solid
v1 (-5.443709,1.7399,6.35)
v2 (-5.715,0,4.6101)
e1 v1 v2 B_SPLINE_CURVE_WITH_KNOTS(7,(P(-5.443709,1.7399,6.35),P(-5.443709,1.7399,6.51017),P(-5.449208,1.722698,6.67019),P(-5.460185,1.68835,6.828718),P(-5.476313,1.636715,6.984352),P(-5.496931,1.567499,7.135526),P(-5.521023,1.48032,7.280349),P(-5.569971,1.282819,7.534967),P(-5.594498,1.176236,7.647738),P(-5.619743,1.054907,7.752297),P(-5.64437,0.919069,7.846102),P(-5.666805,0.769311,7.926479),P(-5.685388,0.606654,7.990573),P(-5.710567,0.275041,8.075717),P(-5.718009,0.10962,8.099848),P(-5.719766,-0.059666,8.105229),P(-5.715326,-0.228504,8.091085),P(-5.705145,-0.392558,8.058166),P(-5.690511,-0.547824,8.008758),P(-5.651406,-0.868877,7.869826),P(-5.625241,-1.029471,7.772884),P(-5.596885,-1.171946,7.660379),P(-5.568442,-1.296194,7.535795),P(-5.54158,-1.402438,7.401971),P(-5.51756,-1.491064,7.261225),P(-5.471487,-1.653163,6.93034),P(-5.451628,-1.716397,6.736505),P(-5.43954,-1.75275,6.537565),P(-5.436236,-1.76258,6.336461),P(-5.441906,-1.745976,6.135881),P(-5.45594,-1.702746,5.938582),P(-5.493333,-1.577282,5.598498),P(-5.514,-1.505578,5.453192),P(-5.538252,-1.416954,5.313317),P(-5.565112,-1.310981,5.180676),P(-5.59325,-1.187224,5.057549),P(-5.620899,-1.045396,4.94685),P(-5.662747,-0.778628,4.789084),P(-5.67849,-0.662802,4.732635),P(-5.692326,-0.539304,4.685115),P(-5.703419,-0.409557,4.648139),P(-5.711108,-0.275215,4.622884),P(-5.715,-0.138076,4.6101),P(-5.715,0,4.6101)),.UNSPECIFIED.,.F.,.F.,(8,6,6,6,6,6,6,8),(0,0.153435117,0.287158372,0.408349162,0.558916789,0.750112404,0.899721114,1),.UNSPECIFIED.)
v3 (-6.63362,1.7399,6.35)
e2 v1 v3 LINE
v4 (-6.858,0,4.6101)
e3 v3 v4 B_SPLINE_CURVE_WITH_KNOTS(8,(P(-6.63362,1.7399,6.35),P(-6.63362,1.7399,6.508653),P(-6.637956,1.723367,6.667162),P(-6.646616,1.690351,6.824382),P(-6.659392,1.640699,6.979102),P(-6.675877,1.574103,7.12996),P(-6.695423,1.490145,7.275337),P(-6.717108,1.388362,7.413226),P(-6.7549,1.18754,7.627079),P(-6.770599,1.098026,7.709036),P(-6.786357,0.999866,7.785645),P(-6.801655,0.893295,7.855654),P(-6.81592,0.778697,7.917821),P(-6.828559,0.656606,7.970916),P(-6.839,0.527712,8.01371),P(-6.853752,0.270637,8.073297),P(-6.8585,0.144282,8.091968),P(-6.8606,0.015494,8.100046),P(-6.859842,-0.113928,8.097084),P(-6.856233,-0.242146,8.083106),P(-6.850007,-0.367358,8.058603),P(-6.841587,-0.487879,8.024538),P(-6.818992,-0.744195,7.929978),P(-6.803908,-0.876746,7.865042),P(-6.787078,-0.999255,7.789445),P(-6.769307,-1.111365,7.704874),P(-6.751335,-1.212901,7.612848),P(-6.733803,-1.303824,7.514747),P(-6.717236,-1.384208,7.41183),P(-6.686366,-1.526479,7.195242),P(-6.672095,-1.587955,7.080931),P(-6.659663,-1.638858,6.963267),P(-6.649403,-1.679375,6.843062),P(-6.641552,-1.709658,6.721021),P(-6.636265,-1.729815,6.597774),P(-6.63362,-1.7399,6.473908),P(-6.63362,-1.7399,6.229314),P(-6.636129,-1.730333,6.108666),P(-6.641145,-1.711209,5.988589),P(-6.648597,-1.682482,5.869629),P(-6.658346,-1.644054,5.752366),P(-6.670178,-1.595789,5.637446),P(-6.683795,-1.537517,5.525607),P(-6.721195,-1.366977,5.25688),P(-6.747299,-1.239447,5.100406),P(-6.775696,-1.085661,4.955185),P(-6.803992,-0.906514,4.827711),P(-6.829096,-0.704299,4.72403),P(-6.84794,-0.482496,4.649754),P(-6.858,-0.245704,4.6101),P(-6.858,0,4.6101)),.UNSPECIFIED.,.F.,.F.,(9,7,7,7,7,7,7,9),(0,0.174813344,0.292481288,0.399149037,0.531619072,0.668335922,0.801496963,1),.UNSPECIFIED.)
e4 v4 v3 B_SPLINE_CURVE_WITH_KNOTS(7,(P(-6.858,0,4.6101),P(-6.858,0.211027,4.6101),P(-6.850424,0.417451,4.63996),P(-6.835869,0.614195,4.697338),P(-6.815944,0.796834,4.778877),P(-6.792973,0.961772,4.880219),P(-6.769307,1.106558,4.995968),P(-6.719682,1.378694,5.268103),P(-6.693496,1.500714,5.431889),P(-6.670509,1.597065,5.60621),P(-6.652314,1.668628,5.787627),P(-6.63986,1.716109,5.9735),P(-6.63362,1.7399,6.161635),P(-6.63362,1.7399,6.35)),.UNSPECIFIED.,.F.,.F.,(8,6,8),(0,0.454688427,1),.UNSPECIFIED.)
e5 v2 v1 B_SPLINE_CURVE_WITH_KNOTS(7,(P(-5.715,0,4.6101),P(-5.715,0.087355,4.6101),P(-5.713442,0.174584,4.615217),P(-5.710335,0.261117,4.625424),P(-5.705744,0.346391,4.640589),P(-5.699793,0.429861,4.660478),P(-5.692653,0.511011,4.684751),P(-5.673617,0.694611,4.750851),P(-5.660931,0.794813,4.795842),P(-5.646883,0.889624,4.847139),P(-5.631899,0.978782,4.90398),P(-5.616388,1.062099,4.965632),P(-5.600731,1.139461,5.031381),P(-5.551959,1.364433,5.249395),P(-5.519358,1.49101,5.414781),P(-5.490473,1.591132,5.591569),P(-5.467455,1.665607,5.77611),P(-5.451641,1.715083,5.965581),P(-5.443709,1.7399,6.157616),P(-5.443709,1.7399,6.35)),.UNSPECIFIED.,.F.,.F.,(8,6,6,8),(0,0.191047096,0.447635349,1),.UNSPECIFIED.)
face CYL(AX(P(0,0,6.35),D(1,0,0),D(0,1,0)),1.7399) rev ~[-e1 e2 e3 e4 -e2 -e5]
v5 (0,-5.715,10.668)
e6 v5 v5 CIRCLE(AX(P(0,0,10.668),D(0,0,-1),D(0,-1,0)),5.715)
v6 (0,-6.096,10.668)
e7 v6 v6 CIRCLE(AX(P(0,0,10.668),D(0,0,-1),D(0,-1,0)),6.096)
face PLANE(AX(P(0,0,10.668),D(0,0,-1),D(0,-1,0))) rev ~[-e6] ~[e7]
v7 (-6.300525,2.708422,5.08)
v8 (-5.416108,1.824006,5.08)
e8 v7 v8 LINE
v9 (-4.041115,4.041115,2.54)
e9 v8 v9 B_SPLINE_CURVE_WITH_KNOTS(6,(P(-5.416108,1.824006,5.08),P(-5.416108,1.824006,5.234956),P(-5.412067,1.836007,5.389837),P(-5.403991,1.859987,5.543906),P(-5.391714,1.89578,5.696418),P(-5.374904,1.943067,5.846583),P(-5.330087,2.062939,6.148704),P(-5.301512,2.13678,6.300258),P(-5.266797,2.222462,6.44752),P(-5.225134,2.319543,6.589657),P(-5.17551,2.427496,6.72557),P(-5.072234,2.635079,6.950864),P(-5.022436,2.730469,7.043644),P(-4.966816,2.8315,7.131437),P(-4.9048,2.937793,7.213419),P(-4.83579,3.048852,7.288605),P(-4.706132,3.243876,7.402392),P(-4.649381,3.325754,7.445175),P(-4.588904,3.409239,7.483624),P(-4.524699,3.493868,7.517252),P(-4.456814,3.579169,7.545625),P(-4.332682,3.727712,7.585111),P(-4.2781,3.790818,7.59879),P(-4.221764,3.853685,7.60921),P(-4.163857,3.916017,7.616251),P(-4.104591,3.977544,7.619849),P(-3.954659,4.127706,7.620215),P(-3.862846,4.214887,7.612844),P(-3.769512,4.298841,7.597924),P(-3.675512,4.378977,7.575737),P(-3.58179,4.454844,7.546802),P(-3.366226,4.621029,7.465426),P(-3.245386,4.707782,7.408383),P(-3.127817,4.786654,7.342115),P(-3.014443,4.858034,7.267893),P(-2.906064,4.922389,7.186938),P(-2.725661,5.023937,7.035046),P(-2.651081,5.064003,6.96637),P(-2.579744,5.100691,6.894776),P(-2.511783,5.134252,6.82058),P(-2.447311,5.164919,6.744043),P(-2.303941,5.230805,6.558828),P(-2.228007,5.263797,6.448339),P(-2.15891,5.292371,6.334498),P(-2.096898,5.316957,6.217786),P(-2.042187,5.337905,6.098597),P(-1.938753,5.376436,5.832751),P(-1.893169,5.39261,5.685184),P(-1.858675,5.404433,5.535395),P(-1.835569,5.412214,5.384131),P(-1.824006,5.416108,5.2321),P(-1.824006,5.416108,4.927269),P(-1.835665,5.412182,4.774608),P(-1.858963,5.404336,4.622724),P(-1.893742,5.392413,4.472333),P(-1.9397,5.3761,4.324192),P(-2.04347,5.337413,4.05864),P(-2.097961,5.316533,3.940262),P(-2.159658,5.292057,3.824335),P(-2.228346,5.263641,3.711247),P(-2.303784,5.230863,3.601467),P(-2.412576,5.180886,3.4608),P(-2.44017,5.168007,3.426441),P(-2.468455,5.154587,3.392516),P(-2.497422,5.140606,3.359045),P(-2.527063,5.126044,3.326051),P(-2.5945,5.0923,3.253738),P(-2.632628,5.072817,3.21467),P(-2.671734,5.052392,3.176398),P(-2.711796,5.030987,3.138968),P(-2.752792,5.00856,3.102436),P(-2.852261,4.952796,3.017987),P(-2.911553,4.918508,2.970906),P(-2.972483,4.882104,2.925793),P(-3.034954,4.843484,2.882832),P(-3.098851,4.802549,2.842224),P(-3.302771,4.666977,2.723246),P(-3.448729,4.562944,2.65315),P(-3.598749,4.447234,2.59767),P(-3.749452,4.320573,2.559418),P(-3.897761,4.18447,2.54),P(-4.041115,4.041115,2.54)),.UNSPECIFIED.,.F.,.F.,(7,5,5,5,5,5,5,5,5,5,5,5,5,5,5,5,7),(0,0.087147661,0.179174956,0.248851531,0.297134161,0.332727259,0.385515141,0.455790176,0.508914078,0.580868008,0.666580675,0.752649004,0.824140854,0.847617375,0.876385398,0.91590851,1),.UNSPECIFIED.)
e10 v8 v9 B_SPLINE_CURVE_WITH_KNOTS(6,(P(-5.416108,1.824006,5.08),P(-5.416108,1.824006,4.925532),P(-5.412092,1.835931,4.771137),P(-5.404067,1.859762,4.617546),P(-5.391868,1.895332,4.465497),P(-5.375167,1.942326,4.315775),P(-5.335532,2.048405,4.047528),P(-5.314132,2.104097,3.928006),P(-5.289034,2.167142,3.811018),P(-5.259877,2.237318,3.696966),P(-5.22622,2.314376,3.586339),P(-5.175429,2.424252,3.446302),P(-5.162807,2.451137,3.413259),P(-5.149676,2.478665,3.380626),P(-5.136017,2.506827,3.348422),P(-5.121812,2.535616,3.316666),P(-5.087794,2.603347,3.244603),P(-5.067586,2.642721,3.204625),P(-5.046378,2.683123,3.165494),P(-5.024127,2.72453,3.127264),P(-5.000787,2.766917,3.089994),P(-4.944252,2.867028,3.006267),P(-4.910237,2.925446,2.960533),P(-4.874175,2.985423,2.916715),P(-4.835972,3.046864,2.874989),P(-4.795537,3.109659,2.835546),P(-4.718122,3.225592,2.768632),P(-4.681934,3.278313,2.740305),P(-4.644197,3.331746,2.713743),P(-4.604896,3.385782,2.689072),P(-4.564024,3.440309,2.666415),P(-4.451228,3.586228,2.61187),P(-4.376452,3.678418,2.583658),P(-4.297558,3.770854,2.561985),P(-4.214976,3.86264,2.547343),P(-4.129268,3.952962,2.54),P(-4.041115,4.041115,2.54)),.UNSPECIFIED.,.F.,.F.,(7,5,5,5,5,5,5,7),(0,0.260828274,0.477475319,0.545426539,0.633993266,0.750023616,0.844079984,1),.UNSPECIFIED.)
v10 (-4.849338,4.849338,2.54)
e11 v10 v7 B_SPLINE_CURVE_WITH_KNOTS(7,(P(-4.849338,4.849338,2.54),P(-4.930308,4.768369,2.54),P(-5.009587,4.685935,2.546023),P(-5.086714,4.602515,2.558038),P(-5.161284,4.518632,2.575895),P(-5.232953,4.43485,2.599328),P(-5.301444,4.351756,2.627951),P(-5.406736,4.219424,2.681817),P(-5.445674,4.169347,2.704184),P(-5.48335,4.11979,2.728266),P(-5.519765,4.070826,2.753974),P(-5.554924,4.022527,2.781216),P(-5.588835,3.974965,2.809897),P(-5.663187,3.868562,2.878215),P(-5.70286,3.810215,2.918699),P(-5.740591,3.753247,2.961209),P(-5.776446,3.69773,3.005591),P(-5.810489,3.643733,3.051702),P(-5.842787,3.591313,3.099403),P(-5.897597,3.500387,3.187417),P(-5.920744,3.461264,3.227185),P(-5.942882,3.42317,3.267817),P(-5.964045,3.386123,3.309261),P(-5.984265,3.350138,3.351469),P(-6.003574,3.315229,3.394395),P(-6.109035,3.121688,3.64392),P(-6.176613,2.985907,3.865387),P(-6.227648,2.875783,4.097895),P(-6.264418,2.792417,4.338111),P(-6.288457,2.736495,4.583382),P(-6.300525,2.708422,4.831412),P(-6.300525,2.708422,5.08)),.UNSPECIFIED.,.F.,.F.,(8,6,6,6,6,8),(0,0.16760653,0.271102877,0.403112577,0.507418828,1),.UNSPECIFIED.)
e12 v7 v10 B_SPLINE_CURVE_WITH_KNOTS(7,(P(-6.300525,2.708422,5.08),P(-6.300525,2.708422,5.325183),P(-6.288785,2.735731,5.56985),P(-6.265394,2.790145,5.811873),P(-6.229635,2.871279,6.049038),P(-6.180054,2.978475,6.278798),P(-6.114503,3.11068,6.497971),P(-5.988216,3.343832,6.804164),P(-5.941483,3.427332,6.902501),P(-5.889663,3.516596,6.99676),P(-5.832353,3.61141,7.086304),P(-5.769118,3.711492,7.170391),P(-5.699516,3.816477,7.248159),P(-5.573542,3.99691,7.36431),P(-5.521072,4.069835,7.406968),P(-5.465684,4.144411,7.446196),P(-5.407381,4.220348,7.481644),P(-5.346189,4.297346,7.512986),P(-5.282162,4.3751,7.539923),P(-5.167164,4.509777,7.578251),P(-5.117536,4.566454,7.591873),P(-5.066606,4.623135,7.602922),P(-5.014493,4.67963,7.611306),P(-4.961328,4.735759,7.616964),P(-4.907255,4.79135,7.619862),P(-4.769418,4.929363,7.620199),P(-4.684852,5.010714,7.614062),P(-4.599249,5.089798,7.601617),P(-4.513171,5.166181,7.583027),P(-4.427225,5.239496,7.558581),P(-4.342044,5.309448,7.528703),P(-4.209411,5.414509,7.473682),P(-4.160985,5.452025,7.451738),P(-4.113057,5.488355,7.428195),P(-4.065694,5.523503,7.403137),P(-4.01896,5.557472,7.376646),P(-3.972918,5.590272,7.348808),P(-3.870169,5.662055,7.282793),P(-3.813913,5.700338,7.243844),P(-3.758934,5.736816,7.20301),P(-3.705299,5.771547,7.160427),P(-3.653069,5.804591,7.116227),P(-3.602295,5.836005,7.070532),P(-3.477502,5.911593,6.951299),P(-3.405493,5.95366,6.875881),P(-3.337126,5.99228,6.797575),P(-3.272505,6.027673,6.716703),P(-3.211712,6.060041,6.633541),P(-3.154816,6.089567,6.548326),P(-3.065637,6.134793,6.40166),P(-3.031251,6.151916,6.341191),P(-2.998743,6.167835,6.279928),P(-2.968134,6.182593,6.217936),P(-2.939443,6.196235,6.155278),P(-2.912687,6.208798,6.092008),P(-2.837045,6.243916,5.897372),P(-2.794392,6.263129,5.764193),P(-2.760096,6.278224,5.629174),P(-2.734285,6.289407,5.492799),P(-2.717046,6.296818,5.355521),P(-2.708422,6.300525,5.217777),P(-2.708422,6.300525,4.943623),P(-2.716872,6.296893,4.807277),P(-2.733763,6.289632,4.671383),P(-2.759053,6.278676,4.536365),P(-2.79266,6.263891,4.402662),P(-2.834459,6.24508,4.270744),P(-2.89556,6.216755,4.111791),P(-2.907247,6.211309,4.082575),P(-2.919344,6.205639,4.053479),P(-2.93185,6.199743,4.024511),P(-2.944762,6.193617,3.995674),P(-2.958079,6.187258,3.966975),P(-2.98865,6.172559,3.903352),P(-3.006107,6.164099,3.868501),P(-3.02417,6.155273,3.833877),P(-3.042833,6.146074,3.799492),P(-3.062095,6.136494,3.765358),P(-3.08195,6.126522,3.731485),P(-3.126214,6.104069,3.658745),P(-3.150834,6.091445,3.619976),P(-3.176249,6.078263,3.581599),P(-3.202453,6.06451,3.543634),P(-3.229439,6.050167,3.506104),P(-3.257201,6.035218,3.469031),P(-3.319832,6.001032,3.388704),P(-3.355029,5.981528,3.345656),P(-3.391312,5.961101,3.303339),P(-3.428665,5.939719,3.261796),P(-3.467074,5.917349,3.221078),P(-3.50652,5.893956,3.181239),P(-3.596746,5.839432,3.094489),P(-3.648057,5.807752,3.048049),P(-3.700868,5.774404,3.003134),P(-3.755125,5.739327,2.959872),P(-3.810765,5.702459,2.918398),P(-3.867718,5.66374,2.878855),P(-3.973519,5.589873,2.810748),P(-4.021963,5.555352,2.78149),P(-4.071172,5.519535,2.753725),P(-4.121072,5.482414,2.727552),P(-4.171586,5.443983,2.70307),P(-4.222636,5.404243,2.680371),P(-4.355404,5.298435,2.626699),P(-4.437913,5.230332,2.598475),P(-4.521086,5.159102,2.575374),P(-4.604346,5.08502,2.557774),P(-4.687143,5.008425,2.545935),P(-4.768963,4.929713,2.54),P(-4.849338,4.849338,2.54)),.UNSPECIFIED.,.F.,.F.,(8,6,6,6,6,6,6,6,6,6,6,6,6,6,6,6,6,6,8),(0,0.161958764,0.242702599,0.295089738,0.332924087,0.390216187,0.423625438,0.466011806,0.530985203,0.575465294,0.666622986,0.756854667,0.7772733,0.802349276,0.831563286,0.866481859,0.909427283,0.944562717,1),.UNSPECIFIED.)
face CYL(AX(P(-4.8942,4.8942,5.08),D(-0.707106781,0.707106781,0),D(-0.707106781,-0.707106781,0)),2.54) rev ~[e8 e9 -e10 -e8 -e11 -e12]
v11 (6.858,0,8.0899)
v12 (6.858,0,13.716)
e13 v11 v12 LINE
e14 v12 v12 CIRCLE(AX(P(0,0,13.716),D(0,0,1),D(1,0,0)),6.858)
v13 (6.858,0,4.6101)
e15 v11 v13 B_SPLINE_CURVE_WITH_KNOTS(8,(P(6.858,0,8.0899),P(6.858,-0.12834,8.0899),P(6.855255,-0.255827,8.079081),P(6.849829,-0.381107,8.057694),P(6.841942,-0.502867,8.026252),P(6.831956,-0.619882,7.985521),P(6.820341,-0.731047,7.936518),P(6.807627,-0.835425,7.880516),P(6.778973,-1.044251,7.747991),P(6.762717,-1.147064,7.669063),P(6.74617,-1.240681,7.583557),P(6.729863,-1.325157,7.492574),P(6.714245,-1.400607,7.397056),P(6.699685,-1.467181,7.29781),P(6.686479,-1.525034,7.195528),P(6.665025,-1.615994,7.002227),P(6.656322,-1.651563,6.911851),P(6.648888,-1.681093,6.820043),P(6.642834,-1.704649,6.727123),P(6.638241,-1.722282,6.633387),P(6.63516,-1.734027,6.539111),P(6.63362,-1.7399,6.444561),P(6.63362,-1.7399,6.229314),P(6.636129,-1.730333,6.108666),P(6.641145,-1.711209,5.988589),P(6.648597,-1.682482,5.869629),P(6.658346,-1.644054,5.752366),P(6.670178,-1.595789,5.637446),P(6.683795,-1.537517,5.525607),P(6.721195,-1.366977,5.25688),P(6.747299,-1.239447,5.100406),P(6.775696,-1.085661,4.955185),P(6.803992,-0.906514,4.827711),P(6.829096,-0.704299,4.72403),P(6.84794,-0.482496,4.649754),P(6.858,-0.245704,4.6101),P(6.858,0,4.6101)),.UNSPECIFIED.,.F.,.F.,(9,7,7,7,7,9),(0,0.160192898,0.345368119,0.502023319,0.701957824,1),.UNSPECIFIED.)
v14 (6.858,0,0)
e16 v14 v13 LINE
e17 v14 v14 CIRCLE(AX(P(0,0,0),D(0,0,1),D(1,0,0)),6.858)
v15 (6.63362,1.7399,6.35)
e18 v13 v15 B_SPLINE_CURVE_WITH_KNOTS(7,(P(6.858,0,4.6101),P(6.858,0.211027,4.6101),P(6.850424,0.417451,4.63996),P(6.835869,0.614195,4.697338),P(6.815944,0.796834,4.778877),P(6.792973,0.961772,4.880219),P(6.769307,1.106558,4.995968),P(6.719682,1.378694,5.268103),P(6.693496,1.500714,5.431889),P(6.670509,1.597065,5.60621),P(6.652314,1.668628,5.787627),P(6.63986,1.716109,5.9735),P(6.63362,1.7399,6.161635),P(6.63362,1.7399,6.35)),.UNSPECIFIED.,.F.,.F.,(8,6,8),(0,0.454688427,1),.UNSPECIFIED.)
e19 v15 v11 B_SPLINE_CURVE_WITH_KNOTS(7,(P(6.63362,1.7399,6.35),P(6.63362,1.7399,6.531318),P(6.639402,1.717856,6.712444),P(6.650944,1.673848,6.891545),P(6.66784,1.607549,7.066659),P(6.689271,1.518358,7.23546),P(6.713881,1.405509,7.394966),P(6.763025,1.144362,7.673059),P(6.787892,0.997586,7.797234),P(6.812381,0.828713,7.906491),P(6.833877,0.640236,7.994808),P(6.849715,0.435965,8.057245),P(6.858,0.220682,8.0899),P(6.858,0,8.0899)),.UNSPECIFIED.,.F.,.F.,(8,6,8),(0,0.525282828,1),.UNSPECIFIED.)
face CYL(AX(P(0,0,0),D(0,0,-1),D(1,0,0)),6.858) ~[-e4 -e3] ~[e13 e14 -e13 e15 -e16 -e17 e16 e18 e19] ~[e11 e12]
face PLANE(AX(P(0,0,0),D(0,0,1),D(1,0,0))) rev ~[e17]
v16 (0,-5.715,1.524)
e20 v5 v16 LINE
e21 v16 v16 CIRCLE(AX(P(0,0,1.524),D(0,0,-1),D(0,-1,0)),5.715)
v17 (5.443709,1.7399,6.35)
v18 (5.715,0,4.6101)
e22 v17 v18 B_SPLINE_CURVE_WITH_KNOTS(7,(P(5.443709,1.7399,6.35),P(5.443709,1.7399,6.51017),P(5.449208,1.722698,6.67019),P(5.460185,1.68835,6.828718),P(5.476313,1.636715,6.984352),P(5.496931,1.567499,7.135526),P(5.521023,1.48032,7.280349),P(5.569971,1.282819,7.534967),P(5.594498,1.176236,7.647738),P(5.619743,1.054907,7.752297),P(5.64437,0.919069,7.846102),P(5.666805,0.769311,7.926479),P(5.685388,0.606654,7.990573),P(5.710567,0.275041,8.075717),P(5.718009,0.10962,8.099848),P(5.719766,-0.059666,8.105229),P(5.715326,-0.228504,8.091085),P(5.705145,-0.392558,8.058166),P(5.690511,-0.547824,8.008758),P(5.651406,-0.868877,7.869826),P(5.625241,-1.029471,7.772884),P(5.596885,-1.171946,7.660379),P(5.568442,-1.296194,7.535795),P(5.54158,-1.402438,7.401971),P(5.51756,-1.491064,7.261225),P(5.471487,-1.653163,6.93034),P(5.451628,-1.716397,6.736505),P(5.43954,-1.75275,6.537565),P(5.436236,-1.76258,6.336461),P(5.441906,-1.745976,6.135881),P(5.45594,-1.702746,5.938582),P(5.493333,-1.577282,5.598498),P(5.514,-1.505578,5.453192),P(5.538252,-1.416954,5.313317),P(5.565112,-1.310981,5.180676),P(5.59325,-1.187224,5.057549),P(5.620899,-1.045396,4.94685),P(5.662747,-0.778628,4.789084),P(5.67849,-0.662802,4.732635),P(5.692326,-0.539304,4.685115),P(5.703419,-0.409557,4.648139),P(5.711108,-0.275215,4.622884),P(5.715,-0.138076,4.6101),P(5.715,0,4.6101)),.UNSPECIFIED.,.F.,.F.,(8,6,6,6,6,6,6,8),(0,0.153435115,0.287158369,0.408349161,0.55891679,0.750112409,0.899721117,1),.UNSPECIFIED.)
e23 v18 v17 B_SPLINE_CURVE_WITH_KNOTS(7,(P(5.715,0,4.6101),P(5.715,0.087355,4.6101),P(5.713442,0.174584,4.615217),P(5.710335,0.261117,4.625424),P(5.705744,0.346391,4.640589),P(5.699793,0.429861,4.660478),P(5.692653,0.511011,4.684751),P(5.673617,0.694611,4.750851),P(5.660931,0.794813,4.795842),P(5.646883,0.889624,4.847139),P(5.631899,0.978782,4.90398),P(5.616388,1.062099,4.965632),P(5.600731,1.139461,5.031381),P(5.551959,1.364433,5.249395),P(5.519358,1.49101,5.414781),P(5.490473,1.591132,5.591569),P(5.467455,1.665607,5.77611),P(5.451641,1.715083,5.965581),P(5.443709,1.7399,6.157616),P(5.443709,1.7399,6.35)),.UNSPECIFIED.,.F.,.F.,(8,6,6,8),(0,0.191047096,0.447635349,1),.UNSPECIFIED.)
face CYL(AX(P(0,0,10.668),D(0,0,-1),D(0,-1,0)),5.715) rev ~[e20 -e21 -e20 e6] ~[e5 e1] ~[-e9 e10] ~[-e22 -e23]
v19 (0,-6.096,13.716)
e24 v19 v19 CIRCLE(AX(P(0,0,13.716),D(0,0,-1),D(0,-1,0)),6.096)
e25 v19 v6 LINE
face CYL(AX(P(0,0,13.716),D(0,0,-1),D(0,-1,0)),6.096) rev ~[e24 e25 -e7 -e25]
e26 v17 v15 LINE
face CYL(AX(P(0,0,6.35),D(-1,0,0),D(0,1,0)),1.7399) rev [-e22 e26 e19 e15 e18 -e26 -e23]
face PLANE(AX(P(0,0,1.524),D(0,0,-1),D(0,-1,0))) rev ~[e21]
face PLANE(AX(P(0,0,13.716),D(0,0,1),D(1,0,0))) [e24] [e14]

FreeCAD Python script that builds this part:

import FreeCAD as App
import Part
import Sketcher
from FreeCAD import Vector
Q = App.Units.Quantity

doc = App.newDocument("Part")
body = doc.addObject("PartDesign::Body", "Body")

# Sketch on XY plane
sketch1 = body.newObject("Sketcher::SketchObject", "Sketch")
sketch1.AttachmentSupport = (doc.getObject("XY_Plane"), [""])
sketch1.MapMode = "FlatFace"
sketch1.addGeometry(Part.Circle(Vector(0, 0, 0), Vector(0, 0, 1), 7), False)
sketch1.addConstraint([
    Sketcher.Constraint("Coincident", 0, 3, -1, 1),
    Sketcher.Constraint("Diameter", 0, Q("0.54 in")),
])
pad1 = body.newObject("PartDesign::Pad", "Pad")
pad1.Profile = sketch1
pad1.Length = Q("0.54 in")

# Sketch on XY plane
sketch2 = body.newObject("Sketcher::SketchObject", "Sketch001")
sketch2.AttachmentSupport = (doc.getObject("XY_Plane"), [""])
sketch2.MapMode = "FlatFace"
sketch2.AttachmentOffset = App.Placement(Vector(0, 0, 0.54 * 25.4), App.Rotation())
sketch2.addGeometry(Part.Circle(Vector(0, 0, 0), Vector(0, 0, 1), 6), False)
sketch2.addConstraint([
    Sketcher.Constraint("Coincident", 0, 3, -1, 1),
    Sketcher.Constraint("Diameter", 0, Q("0.48 in")),
])
doc.recompute()
hole = body.newObject("PartDesign::Hole", "Hole")
hole.Profile = sketch2
hole.ThreadType = "None"
hole.Diameter = Q("0.48 in")
hole.DepthType = "Dimension"
hole.Depth = Q("0.12 in")
hole.DrillPoint = "Flat"

# Sketch on XY plane
sketch3 = body.newObject("Sketcher::SketchObject", "Sketch002")
sketch3.AttachmentSupport = (doc.getObject("XY_Plane"), [""])
sketch3.MapMode = "FlatFace"
sketch3.AttachmentOffset = App.Placement(Vector(0, 0, 0.42 * 25.4), App.Rotation())
sketch3.addGeometry(Part.Circle(Vector(0, 0, 0), Vector(0, 0, 1), 6), False)
sketch3.addConstraint([
    Sketcher.Constraint("Coincident", 0, 3, -1, 1),
    Sketcher.Constraint("Diameter", 0, Q("0.45 in")),
])
doc.recompute()
hole2 = body.newObject("PartDesign::Hole", "Hole001")
hole2.Profile = sketch3
hole2.ThreadType = "None"
hole2.Diameter = Q("0.45 in")
hole2.DepthType = "Dimension"
hole2.Depth = Q("0.36 in")
hole2.DrillPoint = "Flat"

# Sketch on YZ plane
sketch4 = body.newObject("Sketcher::SketchObject", "Sketch003")
sketch4.AttachmentSupport = (doc.getObject("YZ_Plane"), [""])
sketch4.MapMode = "FlatFace"
sketch4.addGeometry(Part.Circle(Vector(0, 6.3, 0), Vector(0, 0, 1), 1.7), False)
sketch4.addConstraint([
    Sketcher.Constraint("PointOnObject", 0, 3, -2),
    Sketcher.Constraint("Diameter", 0, Q("0.137 in")),
    Sketcher.Constraint("DistanceY", -1, 1, 0, 3, Q("0.25 in")),
])
pocket1 = body.newObject("PartDesign::Pocket", "Pocket")
pocket1.Profile = sketch4
pocket1.Type = "ThroughAll"
pocket1.Midplane = True

# Sketch on an angled plane
sketch5 = body.newObject("Sketcher::SketchObject", "Sketch004")
sketch5.Placement = App.Placement(Vector(-4.8942, 4.8942, 0), App.Rotation(Vector(-0.707106781, -0.707106781, 0), Vector(0, 0, 0.999999999), Vector(-0.707106781, 0.707106781, 0), "ZXY"))
sketch5.addGeometry(Part.Circle(Vector(0, 5.1, 0), Vector(0, 0, 1), 2.5), False)
sketch5.addConstraint([
    Sketcher.Constraint("PointOnObject", 0, 3, -2),
    Sketcher.Constraint("Diameter", 0, Q("0.2 in")),
    Sketcher.Constraint("DistanceY", -1, 1, 0, 3, Q("0.2 in")),
])
pocket2 = body.newObject("PartDesign::Pocket", "Pocket001")
pocket2.Profile = sketch5
pocket2.Length = 1.8019

doc.recompute()
